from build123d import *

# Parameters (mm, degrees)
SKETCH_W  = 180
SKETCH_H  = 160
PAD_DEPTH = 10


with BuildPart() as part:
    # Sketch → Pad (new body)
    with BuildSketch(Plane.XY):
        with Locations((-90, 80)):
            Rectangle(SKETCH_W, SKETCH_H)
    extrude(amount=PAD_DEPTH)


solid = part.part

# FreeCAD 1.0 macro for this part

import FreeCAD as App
import Part
import Sketcher
from FreeCAD import Vector

doc = App.newDocument("Part")
body = doc.addObject("PartDesign::Body", "Body")

# Sketch on XY plane
sketch1 = doc.addObject("Sketcher::SketchObject", "Sketch")
body.addObject(sketch1)
sketch1.AttachmentSupport = (doc.XY_Plane, [""])
sketch1.MapMode = "FlatFace"
sketch1.addGeometry([
    Part.LineSegment(Vector(-180, 160, 0), Vector(-180, 0, 0)),
    Part.LineSegment(Vector(-180, 0, 0), Vector(0, 0, 0)),
    Part.LineSegment(Vector(0, 0, 0), Vector(0, 160, 0)),
    Part.LineSegment(Vector(0, 160, 0), Vector(-180, 160, 0)),
], False)
sketch1.addConstraint([
    Sketcher.Constraint("Coincident", 0, 2, 1, 1),
    Sketcher.Constraint("Coincident", 1, 2, 2, 1),
    Sketcher.Constraint("Coincident", 2, 2, 3, 1),
    Sketcher.Constraint("Coincident", 3, 2, 0, 1),
    Sketcher.Constraint("Vertical", 0),
    Sketcher.Constraint("Horizontal", 1),
    Sketcher.Constraint("Vertical", 2),
    Sketcher.Constraint("Horizontal", 3),
    Sketcher.Constraint("Coincident", 1, 2, -1, 1),
    Sketcher.Constraint("DistanceX", 1, 1, 1, 2, 180.0),
    Sketcher.Constraint("DistanceY", 0, 2, 0, 1, 160.0),
])
pad1 = doc.addObject("PartDesign::Pad", "Pad")
body.addObject(pad1)
pad1.Profile = sketch1
pad1.Length = 10

doc.recompute()
